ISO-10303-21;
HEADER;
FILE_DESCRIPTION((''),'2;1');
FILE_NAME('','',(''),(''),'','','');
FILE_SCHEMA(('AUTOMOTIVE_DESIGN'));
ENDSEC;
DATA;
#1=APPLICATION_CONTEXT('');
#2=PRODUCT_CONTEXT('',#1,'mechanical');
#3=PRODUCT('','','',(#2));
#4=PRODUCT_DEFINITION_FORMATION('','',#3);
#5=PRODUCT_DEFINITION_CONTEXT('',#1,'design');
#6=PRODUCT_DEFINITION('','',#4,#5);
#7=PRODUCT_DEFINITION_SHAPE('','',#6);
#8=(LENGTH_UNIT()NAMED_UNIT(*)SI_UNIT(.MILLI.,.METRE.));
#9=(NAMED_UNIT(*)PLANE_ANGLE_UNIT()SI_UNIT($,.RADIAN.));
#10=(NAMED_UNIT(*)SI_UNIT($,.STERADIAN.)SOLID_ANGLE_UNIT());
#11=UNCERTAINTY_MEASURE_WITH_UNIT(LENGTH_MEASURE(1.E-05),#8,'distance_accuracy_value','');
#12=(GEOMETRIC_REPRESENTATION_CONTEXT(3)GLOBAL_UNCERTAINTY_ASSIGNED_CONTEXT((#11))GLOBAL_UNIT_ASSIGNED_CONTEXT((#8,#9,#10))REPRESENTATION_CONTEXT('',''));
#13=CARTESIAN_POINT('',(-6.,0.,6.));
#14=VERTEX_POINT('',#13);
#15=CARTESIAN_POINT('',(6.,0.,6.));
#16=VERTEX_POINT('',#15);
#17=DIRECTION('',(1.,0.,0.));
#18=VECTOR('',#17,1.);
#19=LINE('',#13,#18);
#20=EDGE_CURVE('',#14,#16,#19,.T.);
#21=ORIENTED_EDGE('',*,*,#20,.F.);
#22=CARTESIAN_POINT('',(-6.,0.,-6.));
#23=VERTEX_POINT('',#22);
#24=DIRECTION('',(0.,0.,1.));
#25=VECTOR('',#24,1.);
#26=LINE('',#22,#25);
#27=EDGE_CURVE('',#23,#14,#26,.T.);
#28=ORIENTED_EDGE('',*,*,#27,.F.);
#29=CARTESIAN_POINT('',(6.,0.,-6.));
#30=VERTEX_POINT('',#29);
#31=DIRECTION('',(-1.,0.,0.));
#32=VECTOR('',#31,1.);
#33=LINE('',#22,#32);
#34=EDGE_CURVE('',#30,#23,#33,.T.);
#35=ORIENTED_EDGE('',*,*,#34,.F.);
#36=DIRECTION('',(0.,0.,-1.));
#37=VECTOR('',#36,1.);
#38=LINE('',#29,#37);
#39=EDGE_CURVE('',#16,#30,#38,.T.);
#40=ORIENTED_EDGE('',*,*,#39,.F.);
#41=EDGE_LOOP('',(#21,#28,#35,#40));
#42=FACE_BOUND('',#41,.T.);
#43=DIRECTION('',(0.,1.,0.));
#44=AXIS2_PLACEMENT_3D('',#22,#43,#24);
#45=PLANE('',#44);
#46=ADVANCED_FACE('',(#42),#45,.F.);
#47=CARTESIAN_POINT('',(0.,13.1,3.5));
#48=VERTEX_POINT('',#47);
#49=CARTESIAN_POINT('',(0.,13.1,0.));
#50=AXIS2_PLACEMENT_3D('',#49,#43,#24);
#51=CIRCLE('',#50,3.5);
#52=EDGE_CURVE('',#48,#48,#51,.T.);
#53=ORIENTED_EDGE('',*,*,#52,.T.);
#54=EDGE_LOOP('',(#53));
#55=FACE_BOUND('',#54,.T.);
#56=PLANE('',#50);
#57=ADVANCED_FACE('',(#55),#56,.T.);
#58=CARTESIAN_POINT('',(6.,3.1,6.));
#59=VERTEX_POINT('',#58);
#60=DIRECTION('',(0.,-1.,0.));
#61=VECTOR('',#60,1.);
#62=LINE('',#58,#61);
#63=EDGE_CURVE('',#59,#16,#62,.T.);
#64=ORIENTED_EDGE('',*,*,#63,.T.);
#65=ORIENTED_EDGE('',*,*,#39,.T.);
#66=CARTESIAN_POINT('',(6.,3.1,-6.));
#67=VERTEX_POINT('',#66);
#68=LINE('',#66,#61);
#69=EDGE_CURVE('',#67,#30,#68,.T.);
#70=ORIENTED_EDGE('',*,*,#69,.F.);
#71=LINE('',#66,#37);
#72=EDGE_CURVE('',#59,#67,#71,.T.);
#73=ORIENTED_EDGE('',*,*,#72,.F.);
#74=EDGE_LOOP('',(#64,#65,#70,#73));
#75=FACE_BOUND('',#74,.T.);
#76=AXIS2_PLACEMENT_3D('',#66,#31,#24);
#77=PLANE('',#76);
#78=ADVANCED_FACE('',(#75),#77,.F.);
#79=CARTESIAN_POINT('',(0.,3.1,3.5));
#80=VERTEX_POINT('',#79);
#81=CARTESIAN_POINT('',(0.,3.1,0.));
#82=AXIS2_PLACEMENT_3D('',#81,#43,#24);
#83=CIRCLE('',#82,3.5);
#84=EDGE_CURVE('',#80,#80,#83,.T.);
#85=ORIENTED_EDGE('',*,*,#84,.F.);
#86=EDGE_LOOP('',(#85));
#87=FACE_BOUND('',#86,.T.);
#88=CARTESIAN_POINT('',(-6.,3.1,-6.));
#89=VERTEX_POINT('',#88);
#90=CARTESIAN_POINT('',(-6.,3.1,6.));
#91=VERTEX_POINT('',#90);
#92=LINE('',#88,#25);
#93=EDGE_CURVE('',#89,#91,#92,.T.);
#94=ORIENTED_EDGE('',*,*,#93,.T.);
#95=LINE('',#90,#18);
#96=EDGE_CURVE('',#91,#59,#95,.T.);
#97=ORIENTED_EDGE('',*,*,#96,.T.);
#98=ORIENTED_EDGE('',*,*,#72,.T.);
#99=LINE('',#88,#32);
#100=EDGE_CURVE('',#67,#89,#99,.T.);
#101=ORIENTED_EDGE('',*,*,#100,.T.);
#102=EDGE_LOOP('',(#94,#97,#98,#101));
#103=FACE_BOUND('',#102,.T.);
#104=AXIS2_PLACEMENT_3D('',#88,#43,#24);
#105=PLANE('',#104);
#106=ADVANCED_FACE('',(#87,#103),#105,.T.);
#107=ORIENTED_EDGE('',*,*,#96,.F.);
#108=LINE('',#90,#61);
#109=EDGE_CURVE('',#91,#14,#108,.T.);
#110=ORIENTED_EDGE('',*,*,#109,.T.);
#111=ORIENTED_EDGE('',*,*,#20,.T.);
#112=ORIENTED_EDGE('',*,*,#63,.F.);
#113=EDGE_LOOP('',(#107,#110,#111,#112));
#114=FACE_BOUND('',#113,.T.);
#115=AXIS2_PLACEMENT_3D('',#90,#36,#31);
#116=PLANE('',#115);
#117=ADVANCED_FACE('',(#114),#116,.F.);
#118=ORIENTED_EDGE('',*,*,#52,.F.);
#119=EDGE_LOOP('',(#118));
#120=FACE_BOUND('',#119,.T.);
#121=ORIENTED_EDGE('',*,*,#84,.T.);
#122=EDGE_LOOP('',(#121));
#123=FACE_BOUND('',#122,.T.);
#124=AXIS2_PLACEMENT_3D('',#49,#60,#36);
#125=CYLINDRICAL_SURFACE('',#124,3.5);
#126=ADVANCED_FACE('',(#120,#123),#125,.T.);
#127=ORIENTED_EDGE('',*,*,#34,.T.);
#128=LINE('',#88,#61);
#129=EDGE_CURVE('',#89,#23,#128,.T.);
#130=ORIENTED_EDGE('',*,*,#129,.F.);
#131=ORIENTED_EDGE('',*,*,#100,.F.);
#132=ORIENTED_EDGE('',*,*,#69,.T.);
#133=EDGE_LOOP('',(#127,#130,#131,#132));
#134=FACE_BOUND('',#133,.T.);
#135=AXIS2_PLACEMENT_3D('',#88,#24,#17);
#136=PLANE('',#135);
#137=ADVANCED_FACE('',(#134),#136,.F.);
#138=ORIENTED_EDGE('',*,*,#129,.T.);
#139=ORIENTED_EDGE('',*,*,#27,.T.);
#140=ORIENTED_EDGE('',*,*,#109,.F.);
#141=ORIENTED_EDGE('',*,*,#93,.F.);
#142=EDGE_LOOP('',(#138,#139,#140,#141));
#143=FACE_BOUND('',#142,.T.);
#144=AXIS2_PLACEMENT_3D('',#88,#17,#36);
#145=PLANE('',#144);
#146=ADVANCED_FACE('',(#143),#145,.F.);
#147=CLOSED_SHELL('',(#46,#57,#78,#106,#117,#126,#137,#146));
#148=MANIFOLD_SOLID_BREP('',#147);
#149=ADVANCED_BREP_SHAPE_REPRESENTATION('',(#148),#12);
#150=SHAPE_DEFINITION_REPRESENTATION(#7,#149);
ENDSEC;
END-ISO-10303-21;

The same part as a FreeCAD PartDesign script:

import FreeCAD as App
import Part
import Sketcher

V = App.Vector


def add_polygon(sketch, points):
    """Adds a closed chain of lines whose ends are joined by coincident constraints."""
    first, n = sketch.GeometryCount, len(points)
    for a, b in zip(points, points[1:] + points[:1]):
        sketch.addGeometry(Part.LineSegment(App.Vector(*a, 0), App.Vector(*b, 0)), False)
    for i in range(n):
        sketch.addConstraint(Sketcher.Constraint("Coincident", first + i, 2, first + (i + 1) % n, 1))

doc = App.newDocument("Part")
body = doc.addObject("PartDesign::Body", "Body")

sketch1 = doc.addObject("Sketcher::SketchObject", "Sketch")
body.addObject(sketch1)
sketch1.AttachmentSupport = (doc.XZ_Plane, [""])
sketch1.MapMode = "FlatFace"
add_polygon(sketch1, [(-6, -6), (-6, 6), (6, 6), (6, -6)])
sketch1.addConstraint(Sketcher.Constraint("Vertical", 0))
sketch1.addConstraint(Sketcher.Constraint("Horizontal", 1))
sketch1.addConstraint(Sketcher.Constraint("Vertical", 2))
sketch1.addConstraint(Sketcher.Constraint("Horizontal", 3))
sketch1.addConstraint(Sketcher.Constraint("Symmetric", 0, 2, 2, 2, -1, 1))
sketch1.addConstraint(Sketcher.Constraint("Equal", 3, 0))
sketch1.addConstraint(Sketcher.Constraint("DistanceX", 1, 1, 1, 2, 12.0))
pad1 = doc.addObject("PartDesign::Pad", "Pad")
body.addObject(pad1)
pad1.Profile = sketch1
pad1.Length = 3.1
pad1.Reversed = True

sketch2 = doc.addObject("Sketcher::SketchObject", "Sketch001")
body.addObject(sketch2)
sketch2.AttachmentSupport = (doc.XZ_Plane, [""])
sketch2.MapMode = "FlatFace"
sketch2.AttachmentOffset = App.Placement(V(0, 0, -3.1), App.Rotation())
sketch2.addGeometry(Part.Circle(V(0, 0, 0), V(0, 0, 1), 3.5), False)
sketch2.addConstraint(Sketcher.Constraint("Coincident", 0, 3, -1, 1))
sketch2.addConstraint(Sketcher.Constraint("Diameter", 0, 7.0))
pad2 = doc.addObject("PartDesign::Pad", "Pad001")
body.addObject(pad2)
pad2.Profile = sketch2
pad2.Length = 10
pad2.Reversed = True

doc.recompute()
